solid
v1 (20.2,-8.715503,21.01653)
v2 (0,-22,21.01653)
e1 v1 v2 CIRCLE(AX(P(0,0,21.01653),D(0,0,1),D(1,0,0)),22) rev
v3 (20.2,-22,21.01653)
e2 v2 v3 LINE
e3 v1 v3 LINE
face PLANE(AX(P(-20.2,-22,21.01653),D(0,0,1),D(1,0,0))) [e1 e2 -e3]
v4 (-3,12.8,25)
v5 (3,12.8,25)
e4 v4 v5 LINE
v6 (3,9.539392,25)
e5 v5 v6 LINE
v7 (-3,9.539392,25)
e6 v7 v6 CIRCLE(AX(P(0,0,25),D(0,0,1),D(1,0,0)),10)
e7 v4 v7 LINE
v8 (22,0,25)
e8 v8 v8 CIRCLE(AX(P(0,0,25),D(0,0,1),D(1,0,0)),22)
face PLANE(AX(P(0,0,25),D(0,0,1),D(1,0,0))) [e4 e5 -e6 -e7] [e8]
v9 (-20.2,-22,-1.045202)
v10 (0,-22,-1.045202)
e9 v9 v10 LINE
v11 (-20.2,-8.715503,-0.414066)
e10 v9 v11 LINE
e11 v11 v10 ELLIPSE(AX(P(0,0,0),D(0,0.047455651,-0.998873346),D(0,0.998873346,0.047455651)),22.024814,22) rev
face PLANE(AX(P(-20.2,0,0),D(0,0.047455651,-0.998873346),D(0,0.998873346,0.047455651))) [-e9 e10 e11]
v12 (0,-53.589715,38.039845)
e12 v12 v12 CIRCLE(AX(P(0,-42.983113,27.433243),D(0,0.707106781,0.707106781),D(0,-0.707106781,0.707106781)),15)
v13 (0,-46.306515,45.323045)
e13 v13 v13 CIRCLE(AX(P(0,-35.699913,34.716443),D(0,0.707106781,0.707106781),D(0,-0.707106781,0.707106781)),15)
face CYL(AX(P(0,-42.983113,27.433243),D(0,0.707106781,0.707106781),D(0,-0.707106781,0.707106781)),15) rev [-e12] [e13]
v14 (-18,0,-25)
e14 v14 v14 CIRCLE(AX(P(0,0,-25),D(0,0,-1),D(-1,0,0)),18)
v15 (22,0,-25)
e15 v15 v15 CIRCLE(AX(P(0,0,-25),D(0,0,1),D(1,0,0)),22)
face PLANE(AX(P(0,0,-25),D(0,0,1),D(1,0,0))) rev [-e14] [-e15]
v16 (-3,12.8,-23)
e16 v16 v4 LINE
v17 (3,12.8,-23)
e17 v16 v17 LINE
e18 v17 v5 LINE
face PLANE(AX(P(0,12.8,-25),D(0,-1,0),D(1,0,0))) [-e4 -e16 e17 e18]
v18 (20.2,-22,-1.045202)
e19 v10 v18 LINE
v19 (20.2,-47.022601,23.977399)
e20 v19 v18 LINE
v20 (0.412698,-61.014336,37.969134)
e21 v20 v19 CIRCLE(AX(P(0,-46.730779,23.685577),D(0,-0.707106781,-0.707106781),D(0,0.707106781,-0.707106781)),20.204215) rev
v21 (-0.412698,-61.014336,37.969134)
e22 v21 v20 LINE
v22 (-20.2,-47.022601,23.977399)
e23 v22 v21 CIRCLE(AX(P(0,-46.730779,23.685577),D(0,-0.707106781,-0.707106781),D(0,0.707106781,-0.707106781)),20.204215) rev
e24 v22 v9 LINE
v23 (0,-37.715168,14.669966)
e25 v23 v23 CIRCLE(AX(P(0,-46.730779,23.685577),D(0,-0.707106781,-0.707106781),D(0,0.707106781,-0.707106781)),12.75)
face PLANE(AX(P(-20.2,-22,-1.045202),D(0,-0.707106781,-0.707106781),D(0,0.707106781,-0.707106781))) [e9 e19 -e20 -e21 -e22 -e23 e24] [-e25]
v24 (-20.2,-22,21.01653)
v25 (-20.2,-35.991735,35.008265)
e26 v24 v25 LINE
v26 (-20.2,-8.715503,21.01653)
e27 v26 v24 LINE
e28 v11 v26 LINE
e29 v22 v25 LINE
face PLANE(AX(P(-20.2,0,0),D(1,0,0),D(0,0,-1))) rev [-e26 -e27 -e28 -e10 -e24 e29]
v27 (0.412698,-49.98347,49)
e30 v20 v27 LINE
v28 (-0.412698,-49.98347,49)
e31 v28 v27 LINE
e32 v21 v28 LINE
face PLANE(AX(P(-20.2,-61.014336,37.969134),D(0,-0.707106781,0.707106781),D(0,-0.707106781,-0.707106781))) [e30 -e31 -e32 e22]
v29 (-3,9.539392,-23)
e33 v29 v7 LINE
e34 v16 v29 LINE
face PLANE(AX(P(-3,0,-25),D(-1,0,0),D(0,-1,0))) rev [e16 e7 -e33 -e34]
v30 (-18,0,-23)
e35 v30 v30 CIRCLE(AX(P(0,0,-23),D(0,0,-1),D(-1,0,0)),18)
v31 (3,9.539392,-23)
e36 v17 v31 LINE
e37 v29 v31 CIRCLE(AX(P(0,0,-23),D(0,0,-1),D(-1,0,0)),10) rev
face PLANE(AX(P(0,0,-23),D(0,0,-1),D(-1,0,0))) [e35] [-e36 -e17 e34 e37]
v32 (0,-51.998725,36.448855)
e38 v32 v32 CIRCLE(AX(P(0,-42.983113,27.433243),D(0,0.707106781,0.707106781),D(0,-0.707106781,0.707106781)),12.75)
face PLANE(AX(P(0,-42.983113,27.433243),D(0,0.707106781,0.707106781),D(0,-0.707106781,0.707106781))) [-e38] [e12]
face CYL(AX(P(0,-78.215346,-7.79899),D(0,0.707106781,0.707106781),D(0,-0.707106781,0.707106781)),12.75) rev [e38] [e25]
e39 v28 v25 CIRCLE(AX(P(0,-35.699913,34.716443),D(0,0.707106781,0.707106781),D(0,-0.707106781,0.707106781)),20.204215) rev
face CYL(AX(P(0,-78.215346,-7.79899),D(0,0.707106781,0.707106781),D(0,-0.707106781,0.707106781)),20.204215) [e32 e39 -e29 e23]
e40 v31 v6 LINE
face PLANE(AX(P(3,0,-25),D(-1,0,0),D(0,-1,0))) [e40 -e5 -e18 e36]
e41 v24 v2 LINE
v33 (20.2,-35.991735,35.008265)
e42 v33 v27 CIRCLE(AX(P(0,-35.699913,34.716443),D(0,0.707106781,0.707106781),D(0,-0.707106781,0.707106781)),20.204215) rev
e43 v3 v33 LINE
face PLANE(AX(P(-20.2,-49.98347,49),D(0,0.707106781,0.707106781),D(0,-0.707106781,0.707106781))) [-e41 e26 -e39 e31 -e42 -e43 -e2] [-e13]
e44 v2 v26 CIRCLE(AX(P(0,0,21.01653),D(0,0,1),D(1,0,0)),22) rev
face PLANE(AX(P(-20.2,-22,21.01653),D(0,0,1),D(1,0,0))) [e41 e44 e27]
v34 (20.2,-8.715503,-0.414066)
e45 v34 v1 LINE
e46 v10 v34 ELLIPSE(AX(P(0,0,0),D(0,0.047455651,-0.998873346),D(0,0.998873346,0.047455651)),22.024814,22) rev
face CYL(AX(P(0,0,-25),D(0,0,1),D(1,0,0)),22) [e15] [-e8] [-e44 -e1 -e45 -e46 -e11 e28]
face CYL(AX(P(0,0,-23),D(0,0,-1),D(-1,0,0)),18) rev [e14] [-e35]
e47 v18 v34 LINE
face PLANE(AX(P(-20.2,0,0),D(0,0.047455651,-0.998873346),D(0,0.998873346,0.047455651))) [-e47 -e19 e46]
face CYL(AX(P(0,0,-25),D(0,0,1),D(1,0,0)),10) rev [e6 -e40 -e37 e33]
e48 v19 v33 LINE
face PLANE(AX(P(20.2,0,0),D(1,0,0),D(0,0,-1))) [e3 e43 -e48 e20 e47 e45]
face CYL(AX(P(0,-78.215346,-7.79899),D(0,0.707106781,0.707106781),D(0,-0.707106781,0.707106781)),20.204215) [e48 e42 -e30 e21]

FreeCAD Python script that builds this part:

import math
import FreeCAD as App
import Part
import Sketcher
from FreeCAD import Vector
Q = App.Units.Quantity


def add_polygon(sketch, points):
    """Adds a closed chain of lines whose ends are joined by coincident constraints."""
    first, n = sketch.GeometryCount, len(points)
    for a, b in zip(points, points[1:] + points[:1]):
        sketch.addGeometry(Part.LineSegment(App.Vector(*a, 0), App.Vector(*b, 0)), False)
    for i in range(n):
        sketch.addConstraint(Sketcher.Constraint("Coincident", first + i, 2, first + (i + 1) % n, 1))

doc = App.newDocument("Part")
body = doc.addObject("PartDesign::Body", "Body")

# Sketch on XY plane
sketch1 = body.newObject("Sketcher::SketchObject", "Sketch")
sketch1.AttachmentSupport = (doc.getObject("XY_Plane"), [""])
sketch1.MapMode = "FlatFace"
sketch1.addGeometry(Part.Circle(Vector(0, 0, 0), Vector(0, 0, 1), 22), False)
sketch1.addGeometry(Part.ArcOfCircle(Part.Circle(Vector(0, 0, 0), Vector(0, 0, 1), 10), math.radians(107), math.radians(360)), False)
sketch1.addGeometry(Part.LineSegment(Vector(-3, 9.5, 0), Vector(-3, 12.8, 0)), False)
sketch1.addGeometry(Part.LineSegment(Vector(-3, 12.8, 0), Vector(3, 12.8, 0)), False)
sketch1.addGeometry(Part.LineSegment(Vector(3, 12.8, 0), Vector(3, 9.5, 0)), False)
sketch1.addGeometry(Part.ArcOfCircle(Part.Circle(Vector(0, 0, 0), Vector(0, 0, 1), 10), math.radians(0), math.radians(73)), False)
sketch1.addConstraint(Sketcher.Constraint("Coincident", 1, 1, 2, 1))
sketch1.addConstraint(Sketcher.Constraint("Coincident", 2, 2, 3, 1))
sketch1.addConstraint(Sketcher.Constraint("Coincident", 3, 2, 4, 1))
sketch1.addConstraint(Sketcher.Constraint("Coincident", 4, 2, 5, 2))
sketch1.addConstraint(Sketcher.Constraint("Tangent", 5, 1, 1, 2))
sketch1.addConstraint(Sketcher.Constraint("Vertical", 2))
sketch1.addConstraint(Sketcher.Constraint("Horizontal", 3))
sketch1.addConstraint(Sketcher.Constraint("Vertical", 4))
sketch1.addConstraint(Sketcher.Constraint("Coincident", 0, 3, -1, 1))
sketch1.addConstraint(Sketcher.Constraint("Coincident", 1, 3, -1, 1))
sketch1.addConstraint(Sketcher.Constraint("Equal", 1, 5))
sketch1.addConstraint(Sketcher.Constraint("PointOnObject", 5, 1, -1))
sketch1.addConstraint(Sketcher.Constraint("Horizontal", 1, 1, 4, 2))
sketch1.addConstraint(Sketcher.Constraint("Diameter", 0, Q("44 mm")))
sketch1.addConstraint(Sketcher.Constraint("Radius", 1, Q("10 mm")))
sketch1.addConstraint(Sketcher.Constraint("DistanceX", 3, 1, 3, 2, Q("6 mm")))
sketch1.addConstraint(Sketcher.Constraint("DistanceY", -1, 1, 2, 2, Q("12.8 mm")))
pad1 = body.newObject("PartDesign::Pad", "Pad")
pad1.Profile = sketch1
pad1.Type = "TwoLengths"
pad1.Length = 25
pad1.Length2 = 25

# Sketch on YZ plane
sketch2 = body.newObject("Sketcher::SketchObject", "Sketch001")
sketch2.AttachmentSupport = (doc.getObject("YZ_Plane"), [""])
sketch2.MapMode = "FlatFace"
add_polygon(sketch2, [(-61, 38), (-22, -1), (0, 0), (0, 21), (-22, 21), (-50, 49)])  # lines 0-5
sketch2.addConstraint(Sketcher.Constraint("Vertical", 2))
sketch2.addConstraint(Sketcher.Constraint("Horizontal", 3))
sketch2.addConstraint(Sketcher.Constraint("Coincident", 1, 2, -1, 1))
sketch2.addConstraint(Sketcher.Constraint("Parallel", 0, 4))
sketch2.addConstraint(Sketcher.Constraint("Perpendicular", 4, 5))
sketch2.addConstraint(Sketcher.Constraint("Vertical", 0, 2, 3, 2))
sketch2.addConstraint(Sketcher.Constraint("DistanceX", 3, 2, 3, 1, Q("22 mm")))
sketch2.addConstraint(Sketcher.Constraint("Angle", 0, Q("-45 deg")))
sketch2.addConstraint(Sketcher.Constraint("DistanceY", -1, 1, 4, 2, Q("49 mm")))
sketch2.addConstraint(Sketcher.Constraint("Distance", 5, Q("15.6 mm")))
sketch2.addConstraint(Sketcher.Constraint("DistanceY", 2, 1, 2, 2, Q("21.01653 mm")))
pad2 = body.newObject("PartDesign::Pad", "Pad001")
pad2.Profile = sketch2
pad2.Type = "TwoLengths"
pad2.Length = 20.2
pad2.Length2 = 20.2

# Sketch on an angled plane
sketch3 = body.newObject("Sketcher::SketchObject", "Sketch002")
sketch3.Placement = App.Placement(Vector(0, -0.491735, -0.491735), App.Rotation(Vector(1, 0, 0), Vector(0, 0.707106781, -0.707106781), Vector(0, 0.707106781, 0.707106781), "ZXY"))
sketch3.addGeometry(Part.Circle(Vector(0, -50, 0), Vector(0, 0, 1), 15), False)
sketch3.addConstraint(Sketcher.Constraint("PointOnObject", 0, 3, -2))
sketch3.addConstraint(Sketcher.Constraint("Diameter", 0, Q("30 mm")))
sketch3.addConstraint(Sketcher.Constraint("DistanceY", 0, 3, -1, 1, Q("49.791883 mm")))
pocket1 = body.newObject("PartDesign::Pocket", "Pocket")
pocket1.Profile = sketch3
pocket1.Length = 10.3

# Sketch on an angled plane
sketch4 = body.newObject("Sketcher::SketchObject", "Sketch003")
sketch4.Placement = App.Placement(Vector(0, -0.491735, -0.491735), App.Rotation(Vector(1, 0, 0), Vector(0, 0.707106781, -0.707106781), Vector(0, 0.707106781, 0.707106781), "ZXY"))
sketch4.addGeometry(Part.Circle(Vector(0, -50, 0), Vector(0, 0, 1), 13), False)
sketch4.addConstraint(Sketcher.Constraint("PointOnObject", 0, 3, -2))
sketch4.addConstraint(Sketcher.Constraint("Diameter", 0, Q("25.5 mm")))
sketch4.addConstraint(Sketcher.Constraint("DistanceY", 0, 3, -1, 1, Q("49.791883 mm")))
pocket2 = body.newObject("PartDesign::Pocket", "Pocket001")
pocket2.Profile = sketch4
pocket2.Type = "ThroughAll"

# Sketch on XY plane
sketch5 = body.newObject("Sketcher::SketchObject", "Sketch004")
sketch5.AttachmentSupport = (doc.getObject("XY_Plane"), [""])
sketch5.MapMode = "FlatFace"
sketch5.AttachmentOffset = App.Placement(Vector(0, 0, 25), App.Rotation())
sketch5.addGeometry(Part.Circle(Vector(0, 0, 0), Vector(0, 0, 1), 10), False)
sketch5.addConstraint(Sketcher.Constraint("Coincident", 0, 3, -1, 1))
sketch5.addConstraint(Sketcher.Constraint("Diameter", 0, Q("20 mm")))
pocket3 = body.newObject("PartDesign::Pocket", "Pocket002")
pocket3.Profile = sketch5
pocket3.Type = "ThroughAll"

# Sketch on XY plane
sketch6 = body.newObject("Sketcher::SketchObject", "Sketch005")
sketch6.AttachmentSupport = (doc.getObject("XY_Plane"), [""])
sketch6.MapMode = "FlatFace"
sketch6.AttachmentOffset = App.Placement(Vector(0, 0, -25), App.Rotation())
sketch6.addGeometry(Part.Circle(Vector(0, 0, 0), Vector(0, 0, 1), 18), False)
sketch6.addConstraint(Sketcher.Constraint("Coincident", 0, 3, -1, 1))
sketch6.addConstraint(Sketcher.Constraint("Diameter", 0, Q("36 mm")))
pocket4 = body.newObject("PartDesign::Pocket", "Pocket003")
pocket4.Profile = sketch6
pocket4.Length = 2
pocket4.Reversed = True

# Sketch on an angled plane
sketch7 = body.newObject("Sketcher::SketchObject", "Sketch006")
sketch7.Placement = App.Placement(Vector(0, -0.491735, -0.491735), App.Rotation(Vector(1, 0, 0), Vector(0, 0.707106781, -0.707106781), Vector(0, 0.707106781, 0.707106781), "ZXY"))
sketch7.addGeometry(Part.ArcOfCircle(Part.Circle(Vector(0, -50, 0), Vector(0, 0, 1), 20), math.radians(-89), math.radians(-1)), False)
sketch7.addGeometry(Part.LineSegment(Vector(0, -70, 0), Vector(20, -70, 0)), False)
sketch7.addGeometry(Part.LineSegment(Vector(20, -70, 0), Vector(20, -50, 0)), False)
sketch7.addGeometry(Part.ArcOfCircle(Part.Circle(Vector(0, -50, 0), Vector(0, 0, 1), 20), math.radians(-179), math.radians(-91)), False)
sketch7.addGeometry(Part.LineSegment(Vector(-20, -50, 0), Vector(-20, -70, 0)), False)
sketch7.addGeometry(Part.LineSegment(Vector(-20, -70, 0), Vector(0, -70, 0)), False)
sketch7.addConstraint(Sketcher.Constraint("Coincident", 0, 1, 1, 1))
sketch7.addConstraint(Sketcher.Constraint("Coincident", 1, 2, 2, 1))
sketch7.addConstraint(Sketcher.Constraint("Coincident", 2, 2, 0, 2))
sketch7.addConstraint(Sketcher.Constraint("Coincident", 3, 1, 4, 1))
sketch7.addConstraint(Sketcher.Constraint("Coincident", 4, 2, 5, 1))
sketch7.addConstraint(Sketcher.Constraint("Coincident", 5, 2, 3, 2))
sketch7.addConstraint(Sketcher.Constraint("Horizontal", 1))
sketch7.addConstraint(Sketcher.Constraint("Vertical", 2))
sketch7.addConstraint(Sketcher.Constraint("Vertical", 4))
sketch7.addConstraint(Sketcher.Constraint("Horizontal", 5))
sketch7.addConstraint(Sketcher.Constraint("Coincident", 3, 3, 0, 3))
sketch7.addConstraint(Sketcher.Constraint("Equal", 0, 3))
sketch7.addConstraint(Sketcher.Constraint("Symmetric", 2, 2, 3, 1, -2))
sketch7.addConstraint(Sketcher.Constraint("Horizontal", 1, 2, 4, 2))
sketch7.addConstraint(Sketcher.Constraint("Equal", 5, 2))
sketch7.addConstraint(Sketcher.Constraint("DistanceX", -1, 1, 1, 2, Q("20.2 mm")))
sketch7.addConstraint(Sketcher.Constraint("DistanceX", 1, 1, 1, 2, Q("19.787302 mm")))
sketch7.addConstraint(Sketcher.Constraint("DistanceY", 2, 2, -1, 1, Q("50.204581 mm")))
pocket5 = body.newObject("PartDesign::Pocket", "Pocket004")
pocket5.Profile = sketch7
pocket5.Type = "ThroughAll"

doc.recompute()
